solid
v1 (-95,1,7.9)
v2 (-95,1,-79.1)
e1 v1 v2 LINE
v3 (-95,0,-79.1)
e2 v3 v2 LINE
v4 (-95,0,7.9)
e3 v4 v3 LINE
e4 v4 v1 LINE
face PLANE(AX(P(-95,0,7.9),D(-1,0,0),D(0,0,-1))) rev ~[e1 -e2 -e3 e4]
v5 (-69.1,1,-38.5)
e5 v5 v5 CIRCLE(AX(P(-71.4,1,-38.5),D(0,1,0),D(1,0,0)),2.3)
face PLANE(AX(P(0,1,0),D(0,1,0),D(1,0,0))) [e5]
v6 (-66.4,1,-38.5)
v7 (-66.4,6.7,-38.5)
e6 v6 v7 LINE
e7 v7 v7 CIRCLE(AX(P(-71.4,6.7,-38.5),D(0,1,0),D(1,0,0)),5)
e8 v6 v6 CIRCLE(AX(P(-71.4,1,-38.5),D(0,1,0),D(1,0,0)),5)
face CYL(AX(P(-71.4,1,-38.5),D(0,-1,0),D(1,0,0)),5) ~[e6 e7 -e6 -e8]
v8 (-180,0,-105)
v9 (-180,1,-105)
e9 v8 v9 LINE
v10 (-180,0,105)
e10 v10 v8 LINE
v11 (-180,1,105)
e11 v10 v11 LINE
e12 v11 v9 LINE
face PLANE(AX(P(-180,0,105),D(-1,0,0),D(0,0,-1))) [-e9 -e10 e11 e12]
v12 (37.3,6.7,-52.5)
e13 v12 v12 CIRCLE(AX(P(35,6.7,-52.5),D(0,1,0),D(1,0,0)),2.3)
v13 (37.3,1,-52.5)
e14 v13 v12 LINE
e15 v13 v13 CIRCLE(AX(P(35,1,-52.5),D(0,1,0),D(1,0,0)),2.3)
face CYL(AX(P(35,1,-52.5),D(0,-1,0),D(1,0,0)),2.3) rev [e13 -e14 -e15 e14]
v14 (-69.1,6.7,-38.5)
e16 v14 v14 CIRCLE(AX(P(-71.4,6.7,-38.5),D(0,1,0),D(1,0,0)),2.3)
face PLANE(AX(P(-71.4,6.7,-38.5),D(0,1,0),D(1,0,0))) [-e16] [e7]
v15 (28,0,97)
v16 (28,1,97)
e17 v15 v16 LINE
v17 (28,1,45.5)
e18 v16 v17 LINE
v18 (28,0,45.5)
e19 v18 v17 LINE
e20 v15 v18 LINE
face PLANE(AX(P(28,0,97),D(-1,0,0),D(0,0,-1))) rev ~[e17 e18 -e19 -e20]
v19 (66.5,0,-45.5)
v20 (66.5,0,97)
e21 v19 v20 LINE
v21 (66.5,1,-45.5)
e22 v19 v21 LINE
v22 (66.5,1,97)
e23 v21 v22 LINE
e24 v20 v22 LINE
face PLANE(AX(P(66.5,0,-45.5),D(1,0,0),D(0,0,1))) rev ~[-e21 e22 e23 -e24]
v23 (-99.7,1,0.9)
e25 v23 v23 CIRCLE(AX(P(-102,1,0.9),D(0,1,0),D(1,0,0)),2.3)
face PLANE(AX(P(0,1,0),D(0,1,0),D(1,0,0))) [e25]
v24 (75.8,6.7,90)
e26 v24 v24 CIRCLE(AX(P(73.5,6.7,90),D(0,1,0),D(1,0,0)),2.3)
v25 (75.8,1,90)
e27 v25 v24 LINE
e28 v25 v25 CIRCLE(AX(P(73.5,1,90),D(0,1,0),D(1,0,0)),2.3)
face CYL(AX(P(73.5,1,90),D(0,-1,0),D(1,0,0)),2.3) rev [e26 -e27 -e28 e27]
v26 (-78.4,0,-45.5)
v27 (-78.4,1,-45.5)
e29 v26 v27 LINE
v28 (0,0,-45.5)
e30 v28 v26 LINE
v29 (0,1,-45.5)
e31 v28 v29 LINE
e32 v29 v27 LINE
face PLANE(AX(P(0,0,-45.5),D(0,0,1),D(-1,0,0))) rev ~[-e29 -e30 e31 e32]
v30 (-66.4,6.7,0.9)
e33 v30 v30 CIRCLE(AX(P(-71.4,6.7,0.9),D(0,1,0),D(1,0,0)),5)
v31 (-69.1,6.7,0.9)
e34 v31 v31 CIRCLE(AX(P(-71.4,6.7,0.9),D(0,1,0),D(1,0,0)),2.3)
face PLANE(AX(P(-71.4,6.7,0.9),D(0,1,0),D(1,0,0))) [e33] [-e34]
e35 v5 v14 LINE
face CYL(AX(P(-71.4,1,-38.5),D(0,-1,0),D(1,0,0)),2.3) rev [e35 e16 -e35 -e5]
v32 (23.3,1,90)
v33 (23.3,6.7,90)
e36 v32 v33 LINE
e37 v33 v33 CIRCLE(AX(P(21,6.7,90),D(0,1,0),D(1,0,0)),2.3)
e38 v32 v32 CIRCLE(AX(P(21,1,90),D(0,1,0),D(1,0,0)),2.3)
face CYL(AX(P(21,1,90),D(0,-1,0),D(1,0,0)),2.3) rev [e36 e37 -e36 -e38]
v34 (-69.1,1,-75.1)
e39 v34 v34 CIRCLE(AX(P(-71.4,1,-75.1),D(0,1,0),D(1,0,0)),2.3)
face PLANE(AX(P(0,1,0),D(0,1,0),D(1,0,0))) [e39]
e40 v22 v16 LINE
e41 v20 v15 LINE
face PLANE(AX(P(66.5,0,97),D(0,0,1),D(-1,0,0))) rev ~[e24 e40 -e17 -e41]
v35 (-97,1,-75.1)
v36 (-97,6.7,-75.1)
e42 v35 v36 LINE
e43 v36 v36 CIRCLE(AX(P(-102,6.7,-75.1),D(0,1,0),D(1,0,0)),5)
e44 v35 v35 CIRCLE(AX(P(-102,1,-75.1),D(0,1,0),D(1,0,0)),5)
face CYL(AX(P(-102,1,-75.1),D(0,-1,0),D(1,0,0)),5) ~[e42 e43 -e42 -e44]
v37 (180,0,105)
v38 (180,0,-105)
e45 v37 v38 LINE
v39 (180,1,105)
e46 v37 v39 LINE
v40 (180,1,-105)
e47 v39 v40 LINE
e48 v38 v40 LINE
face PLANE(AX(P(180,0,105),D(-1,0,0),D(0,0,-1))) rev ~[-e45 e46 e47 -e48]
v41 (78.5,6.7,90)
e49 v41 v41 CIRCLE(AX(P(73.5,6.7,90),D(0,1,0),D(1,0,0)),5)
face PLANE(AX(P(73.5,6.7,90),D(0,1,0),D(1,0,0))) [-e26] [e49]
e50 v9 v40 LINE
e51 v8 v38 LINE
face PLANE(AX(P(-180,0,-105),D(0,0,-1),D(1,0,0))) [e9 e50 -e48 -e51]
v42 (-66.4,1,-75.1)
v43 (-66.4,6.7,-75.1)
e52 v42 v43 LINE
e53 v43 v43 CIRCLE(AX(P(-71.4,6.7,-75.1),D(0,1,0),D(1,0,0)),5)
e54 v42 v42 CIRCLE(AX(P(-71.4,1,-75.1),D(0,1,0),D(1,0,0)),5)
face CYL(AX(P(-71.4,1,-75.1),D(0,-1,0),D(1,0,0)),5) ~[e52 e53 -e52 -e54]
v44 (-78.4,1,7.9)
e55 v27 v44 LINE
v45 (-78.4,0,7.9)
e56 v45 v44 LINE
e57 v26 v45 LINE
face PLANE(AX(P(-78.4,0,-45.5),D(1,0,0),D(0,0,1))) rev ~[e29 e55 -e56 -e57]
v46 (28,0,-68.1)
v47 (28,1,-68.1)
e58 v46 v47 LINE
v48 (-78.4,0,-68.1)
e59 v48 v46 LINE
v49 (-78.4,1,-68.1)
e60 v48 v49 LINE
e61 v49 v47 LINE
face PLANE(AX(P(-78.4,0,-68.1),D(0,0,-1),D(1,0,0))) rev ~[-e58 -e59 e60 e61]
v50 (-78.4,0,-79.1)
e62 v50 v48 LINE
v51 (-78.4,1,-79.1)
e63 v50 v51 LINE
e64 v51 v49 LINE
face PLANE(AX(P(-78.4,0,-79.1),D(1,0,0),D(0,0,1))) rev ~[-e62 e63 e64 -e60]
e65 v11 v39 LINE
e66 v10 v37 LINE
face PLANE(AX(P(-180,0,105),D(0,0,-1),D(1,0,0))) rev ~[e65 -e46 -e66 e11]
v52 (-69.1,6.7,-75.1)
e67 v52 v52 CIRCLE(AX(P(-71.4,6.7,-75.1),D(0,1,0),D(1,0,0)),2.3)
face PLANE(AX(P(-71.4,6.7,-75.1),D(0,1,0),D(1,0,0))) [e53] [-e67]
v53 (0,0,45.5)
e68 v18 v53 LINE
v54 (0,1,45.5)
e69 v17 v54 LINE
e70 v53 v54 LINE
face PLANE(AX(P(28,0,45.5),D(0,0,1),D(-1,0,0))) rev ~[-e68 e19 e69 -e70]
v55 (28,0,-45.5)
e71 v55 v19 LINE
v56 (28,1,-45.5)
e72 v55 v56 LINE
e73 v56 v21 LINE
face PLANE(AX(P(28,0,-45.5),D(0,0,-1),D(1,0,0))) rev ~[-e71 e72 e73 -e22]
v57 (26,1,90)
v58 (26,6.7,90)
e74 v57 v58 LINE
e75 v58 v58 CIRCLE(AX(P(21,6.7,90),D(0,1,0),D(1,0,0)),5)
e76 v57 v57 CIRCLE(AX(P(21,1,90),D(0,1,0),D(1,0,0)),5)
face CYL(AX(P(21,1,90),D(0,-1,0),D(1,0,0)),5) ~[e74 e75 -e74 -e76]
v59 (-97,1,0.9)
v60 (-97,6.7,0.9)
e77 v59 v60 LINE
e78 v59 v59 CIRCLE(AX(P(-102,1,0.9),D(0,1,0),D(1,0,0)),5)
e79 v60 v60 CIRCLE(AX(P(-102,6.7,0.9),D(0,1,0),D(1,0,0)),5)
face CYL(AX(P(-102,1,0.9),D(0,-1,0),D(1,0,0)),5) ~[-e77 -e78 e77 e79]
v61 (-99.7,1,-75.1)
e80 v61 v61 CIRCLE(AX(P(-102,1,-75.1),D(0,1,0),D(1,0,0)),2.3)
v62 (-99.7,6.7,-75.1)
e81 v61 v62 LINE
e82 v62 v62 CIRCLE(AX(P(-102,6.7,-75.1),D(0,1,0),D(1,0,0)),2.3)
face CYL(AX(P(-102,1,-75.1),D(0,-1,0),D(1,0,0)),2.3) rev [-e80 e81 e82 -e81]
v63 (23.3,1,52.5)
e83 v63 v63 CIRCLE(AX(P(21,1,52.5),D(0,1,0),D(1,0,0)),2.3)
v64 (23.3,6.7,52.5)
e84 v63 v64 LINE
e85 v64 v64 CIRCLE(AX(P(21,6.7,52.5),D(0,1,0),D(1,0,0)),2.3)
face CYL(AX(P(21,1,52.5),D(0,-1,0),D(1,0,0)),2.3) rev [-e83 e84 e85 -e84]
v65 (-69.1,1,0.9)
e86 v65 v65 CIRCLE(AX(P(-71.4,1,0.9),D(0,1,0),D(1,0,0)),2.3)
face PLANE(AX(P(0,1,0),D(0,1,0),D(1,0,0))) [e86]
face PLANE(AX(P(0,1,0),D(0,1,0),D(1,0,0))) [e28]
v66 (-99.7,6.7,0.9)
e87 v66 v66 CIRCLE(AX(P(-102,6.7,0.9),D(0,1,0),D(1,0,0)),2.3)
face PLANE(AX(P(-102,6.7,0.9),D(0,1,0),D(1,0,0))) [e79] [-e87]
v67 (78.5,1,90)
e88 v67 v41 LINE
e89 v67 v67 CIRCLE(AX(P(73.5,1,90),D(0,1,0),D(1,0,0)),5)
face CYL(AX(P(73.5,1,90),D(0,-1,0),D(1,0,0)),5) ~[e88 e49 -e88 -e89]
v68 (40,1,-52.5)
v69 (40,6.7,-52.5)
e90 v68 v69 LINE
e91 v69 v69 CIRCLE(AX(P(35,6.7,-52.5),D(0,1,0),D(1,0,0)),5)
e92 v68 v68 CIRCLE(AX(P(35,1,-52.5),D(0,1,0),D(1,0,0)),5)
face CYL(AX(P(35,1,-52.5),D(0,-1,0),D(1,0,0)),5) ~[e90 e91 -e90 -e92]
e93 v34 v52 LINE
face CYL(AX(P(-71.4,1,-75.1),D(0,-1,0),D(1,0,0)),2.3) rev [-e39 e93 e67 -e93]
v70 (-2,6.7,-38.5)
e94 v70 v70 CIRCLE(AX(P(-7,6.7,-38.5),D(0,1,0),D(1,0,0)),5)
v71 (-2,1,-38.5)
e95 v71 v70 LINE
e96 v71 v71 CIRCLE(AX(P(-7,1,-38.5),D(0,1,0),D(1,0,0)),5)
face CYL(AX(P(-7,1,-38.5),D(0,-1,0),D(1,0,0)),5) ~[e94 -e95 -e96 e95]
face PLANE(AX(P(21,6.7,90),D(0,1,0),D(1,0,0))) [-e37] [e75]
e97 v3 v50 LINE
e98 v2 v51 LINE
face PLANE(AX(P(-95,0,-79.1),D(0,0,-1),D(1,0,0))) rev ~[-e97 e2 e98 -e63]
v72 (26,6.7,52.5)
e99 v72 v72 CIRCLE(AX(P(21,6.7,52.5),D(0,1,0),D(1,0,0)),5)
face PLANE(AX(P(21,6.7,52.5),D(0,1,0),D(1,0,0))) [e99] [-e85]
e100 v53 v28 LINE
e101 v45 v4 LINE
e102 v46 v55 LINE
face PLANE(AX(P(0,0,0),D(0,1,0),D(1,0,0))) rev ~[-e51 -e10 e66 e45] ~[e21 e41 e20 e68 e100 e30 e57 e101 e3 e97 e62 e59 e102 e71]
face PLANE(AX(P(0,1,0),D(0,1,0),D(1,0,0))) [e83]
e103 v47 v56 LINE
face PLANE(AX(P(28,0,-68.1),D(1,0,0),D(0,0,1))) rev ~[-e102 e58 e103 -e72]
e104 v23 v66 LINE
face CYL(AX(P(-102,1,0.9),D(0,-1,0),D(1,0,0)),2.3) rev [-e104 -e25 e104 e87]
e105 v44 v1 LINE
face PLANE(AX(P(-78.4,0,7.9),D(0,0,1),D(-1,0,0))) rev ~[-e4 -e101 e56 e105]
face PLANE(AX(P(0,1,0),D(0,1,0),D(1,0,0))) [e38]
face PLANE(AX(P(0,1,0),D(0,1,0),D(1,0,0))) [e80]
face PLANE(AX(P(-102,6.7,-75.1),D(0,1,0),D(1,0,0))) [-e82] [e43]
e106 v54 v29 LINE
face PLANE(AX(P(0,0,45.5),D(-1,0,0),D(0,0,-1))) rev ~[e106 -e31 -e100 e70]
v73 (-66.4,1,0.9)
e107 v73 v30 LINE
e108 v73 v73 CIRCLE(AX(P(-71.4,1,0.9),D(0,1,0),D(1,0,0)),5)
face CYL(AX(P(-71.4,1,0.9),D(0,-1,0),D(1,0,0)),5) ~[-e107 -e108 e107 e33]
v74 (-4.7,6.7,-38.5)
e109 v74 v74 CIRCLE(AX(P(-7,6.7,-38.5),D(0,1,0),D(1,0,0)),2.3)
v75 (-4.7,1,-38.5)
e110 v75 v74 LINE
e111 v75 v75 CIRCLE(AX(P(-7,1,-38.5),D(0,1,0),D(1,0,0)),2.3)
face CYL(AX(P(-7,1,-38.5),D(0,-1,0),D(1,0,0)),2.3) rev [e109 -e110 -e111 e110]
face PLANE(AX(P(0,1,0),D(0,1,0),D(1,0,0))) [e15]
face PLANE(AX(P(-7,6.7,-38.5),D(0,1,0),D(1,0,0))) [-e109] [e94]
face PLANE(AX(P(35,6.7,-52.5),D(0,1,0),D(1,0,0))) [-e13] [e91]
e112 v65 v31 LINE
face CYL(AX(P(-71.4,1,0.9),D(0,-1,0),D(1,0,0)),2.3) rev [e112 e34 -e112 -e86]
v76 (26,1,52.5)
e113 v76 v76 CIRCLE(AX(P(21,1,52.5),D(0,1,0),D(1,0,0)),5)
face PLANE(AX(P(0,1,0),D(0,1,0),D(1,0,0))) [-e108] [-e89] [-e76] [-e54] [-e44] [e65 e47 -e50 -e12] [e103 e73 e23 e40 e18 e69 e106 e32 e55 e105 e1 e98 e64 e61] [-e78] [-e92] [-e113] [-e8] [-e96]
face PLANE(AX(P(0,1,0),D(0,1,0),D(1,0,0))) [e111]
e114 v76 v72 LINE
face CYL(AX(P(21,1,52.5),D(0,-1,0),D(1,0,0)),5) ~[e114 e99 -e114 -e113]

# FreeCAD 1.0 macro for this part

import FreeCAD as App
import Part
import Sketcher
from FreeCAD import Vector
Q = App.Units.Quantity

doc = App.newDocument("Part")
body = doc.addObject("PartDesign::Body", "Body")

sketch1 = body.newObject("Sketcher::SketchObject", "Sketch")
sketch1.AttachmentSupport = (doc.getObject("XZ_Plane"), [""])
sketch1.MapMode = "FlatFace"
sketch1.addGeometry([
    Part.LineSegment(Vector(-180, -105, 0), Vector(-180, 105, 0)),
    Part.LineSegment(Vector(-180, 105, 0), Vector(180, 105, 0)),
    Part.LineSegment(Vector(180, 105, 0), Vector(180, -105, 0)),
    Part.LineSegment(Vector(180, -105, 0), Vector(-180, -105, 0)),
    Part.LineSegment(Vector(28, 97, 0), Vector(28, 46, 0)),
    Part.LineSegment(Vector(28, 46, 0), Vector(0, 46, 0)),
    Part.LineSegment(Vector(0, 46, 0), Vector(0, -46, 0)),
    Part.LineSegment(Vector(0, -46, 0), Vector(-78, -46, 0)),
    Part.LineSegment(Vector(-78, -46, 0), Vector(-78, 8, 0)),
    Part.LineSegment(Vector(-78, 8, 0), Vector(-95, 8, 0)),
    Part.LineSegment(Vector(-95, 8, 0), Vector(-95, -79, 0)),
    Part.LineSegment(Vector(-95, -79, 0), Vector(-78, -79, 0)),
    Part.LineSegment(Vector(-78, -79, 0), Vector(-78, -68, 0)),
    Part.LineSegment(Vector(-78, -68, 0), Vector(28, -68, 0)),
    Part.LineSegment(Vector(28, -68, 0), Vector(28, -46, 0)),
    Part.LineSegment(Vector(28, -46, 0), Vector(66, -46, 0)),
    Part.LineSegment(Vector(66, -46, 0), Vector(66, 97, 0)),
    Part.LineSegment(Vector(66, 97, 0), Vector(28, 97, 0)),
], False)
sketch1.addConstraint([
    Sketcher.Constraint("Coincident", 0, 2, 1, 1),
    Sketcher.Constraint("Coincident", 1, 2, 2, 1),
    Sketcher.Constraint("Coincident", 2, 2, 3, 1),
    Sketcher.Constraint("Coincident", 3, 2, 0, 1),
    Sketcher.Constraint("Coincident", 4, 2, 5, 1),
    Sketcher.Constraint("Coincident", 5, 2, 6, 1),
    Sketcher.Constraint("Coincident", 6, 2, 7, 1),
    Sketcher.Constraint("Coincident", 7, 2, 8, 1),
    Sketcher.Constraint("Coincident", 8, 2, 9, 1),
    Sketcher.Constraint("Coincident", 9, 2, 10, 1),
    Sketcher.Constraint("Coincident", 10, 2, 11, 1),
    Sketcher.Constraint("Coincident", 11, 2, 12, 1),
    Sketcher.Constraint("Coincident", 12, 2, 13, 1),
    Sketcher.Constraint("Coincident", 13, 2, 14, 1),
    Sketcher.Constraint("Coincident", 14, 2, 15, 1),
    Sketcher.Constraint("Coincident", 15, 2, 16, 1),
    Sketcher.Constraint("Coincident", 16, 2, 17, 1),
    Sketcher.Constraint("Coincident", 17, 2, 4, 1),
    Sketcher.Constraint("Vertical", 0),
    Sketcher.Constraint("Horizontal", 1),
    Sketcher.Constraint("Vertical", 2),
    Sketcher.Constraint("Horizontal", 3),
    Sketcher.Constraint("Vertical", 4),
    Sketcher.Constraint("Horizontal", 5),
    Sketcher.Constraint("Vertical", 6),
    Sketcher.Constraint("Horizontal", 7),
    Sketcher.Constraint("Vertical", 8),
    Sketcher.Constraint("Horizontal", 9),
    Sketcher.Constraint("Vertical", 10),
    Sketcher.Constraint("Horizontal", 11),
    Sketcher.Constraint("Vertical", 12),
    Sketcher.Constraint("Horizontal", 13),
    Sketcher.Constraint("Vertical", 14),
    Sketcher.Constraint("Horizontal", 15),
    Sketcher.Constraint("Vertical", 16),
    Sketcher.Constraint("Horizontal", 17),
    Sketcher.Constraint("Symmetric", 0, 2, 2, 2, -1, 1),
    Sketcher.Constraint("Symmetric", 5, 2, 6, 2, -1, 1),
    Sketcher.Constraint("Symmetric", 4, 2, 14, 2, -1),
    Sketcher.Constraint("Vertical", 8, 2, 11, 2),
    Sketcher.Constraint("DistanceX", 1, 1, 1, 2, Q("360 mm")),
    Sketcher.Constraint("DistanceX", 5, 2, 5, 1, Q("28 mm")),
    Sketcher.Constraint("DistanceY", 0, 1, 0, 2, Q("210 mm")),
    Sketcher.Constraint("DistanceY", 6, 2, 6, 1, Q("91 mm")),
    Sketcher.Constraint("DistanceY", 10, 2, 10, 1, Q("87 mm")),
    Sketcher.Constraint("DistanceY", 12, 1, 12, 2, Q("11 mm")),
    Sketcher.Constraint("DistanceX", 7, 2, 7, 1, Q("78.4 mm")),
    Sketcher.Constraint("DistanceX", 9, 2, 9, 1, Q("16.6 mm")),
    Sketcher.Constraint("DistanceX", 15, 1, 15, 2, Q("38.5 mm")),
    Sketcher.Constraint("DistanceY", 4, 2, 4, 1, Q("51.5 mm")),
    Sketcher.Constraint("DistanceY", 8, 1, 8, 2, Q("53.4 mm")),
])
pad1 = body.newObject("PartDesign::Pad", "Pad")
pad1.Profile = sketch1
pad1.Length = 1
pad1.Reversed = True

sketch2 = body.newObject("Sketcher::SketchObject", "Sketch001")
sketch2.AttachmentSupport = (doc.getObject("XZ_Plane"), [""])
sketch2.MapMode = "FlatFace"
sketch2.AttachmentOffset = App.Placement(Vector(0, 0, -1), App.Rotation())
sketch2.addGeometry([
    Part.Circle(Vector(-71.4, -75.1, 0), Vector(0, 0, 1), 5),
    Part.Circle(Vector(-71.4, -75.1, 0), Vector(0, 0, 1), 2.3),
    Part.Circle(Vector(-71.4, -38.5, 0), Vector(0, 0, 1), 5),
    Part.Circle(Vector(-71.4, -38.5, 0), Vector(0, 0, 1), 2.3),
    Part.Circle(Vector(-102, -75.1, 0), Vector(0, 0, 1), 5),
    Part.Circle(Vector(-102, -75.1, 0), Vector(0, 0, 1), 2.3),
    Part.Circle(Vector(-7, -38.5, 0), Vector(0, 0, 1), 5),
    Part.Circle(Vector(-7, -38.5, 0), Vector(0, 0, 1), 2.3),
    Part.Circle(Vector(35, -52.5, 0), Vector(0, 0, 1), 5),
    Part.Circle(Vector(35, -52.5, 0), Vector(0, 0, 1), 2.3),
    Part.Circle(Vector(21, 52.5, 0), Vector(0, 0, 1), 5),
    Part.Circle(Vector(21, 52.5, 0), Vector(0, 0, 1), 2.3),
    Part.Circle(Vector(-71.4, 0.9, 0), Vector(0, 0, 1), 5),
    Part.Circle(Vector(-71.4, 0.9, 0), Vector(0, 0, 1), 2.3),
    Part.Circle(Vector(-102, 0.9, 0), Vector(0, 0, 1), 5),
    Part.Circle(Vector(-102, 0.9, 0), Vector(0, 0, 1), 2.3),
    Part.Circle(Vector(73.5, 90, 0), Vector(0, 0, 1), 5),
    Part.Circle(Vector(73.5, 90, 0), Vector(0, 0, 1), 2.3),
    Part.Circle(Vector(21, 90, 0), Vector(0, 0, 1), 5),
    Part.Circle(Vector(21, 90, 0), Vector(0, 0, 1), 2.3),
], False)
sketch2.addConstraint([
    Sketcher.Constraint("Coincident", 1, 3, 0, 3),
    Sketcher.Constraint("Coincident", 3, 3, 2, 3),
    Sketcher.Constraint("Coincident", 5, 3, 4, 3),
    Sketcher.Constraint("Coincident", 7, 3, 6, 3),
    Sketcher.Constraint("Coincident", 9, 3, 8, 3),
    Sketcher.Constraint("Coincident", 11, 3, 10, 3),
    Sketcher.Constraint("Coincident", 13, 3, 12, 3),
    Sketcher.Constraint("Coincident", 15, 3, 14, 3),
    Sketcher.Constraint("Coincident", 17, 3, 16, 3),
    Sketcher.Constraint("Coincident", 19, 3, 18, 3),
    Sketcher.Constraint("Equal", 0, 2),
    Sketcher.Constraint("Equal", 1, 3),
    Sketcher.Constraint("Equal", 2, 4),
    Sketcher.Constraint("Equal", 3, 5),
    Sketcher.Constraint("Equal", 4, 6),
    Sketcher.Constraint("Equal", 5, 7),
    Sketcher.Constraint("Equal", 6, 8),
    Sketcher.Constraint("Equal", 7, 9),
    Sketcher.Constraint("Equal", 8, 10),
    Sketcher.Constraint("Equal", 9, 11),
    Sketcher.Constraint("Equal", 10, 12),
    Sketcher.Constraint("Equal", 11, 13),
    Sketcher.Constraint("Equal", 12, 14),
    Sketcher.Constraint("Equal", 13, 15),
    Sketcher.Constraint("Equal", 14, 16),
    Sketcher.Constraint("Equal", 15, 17),
    Sketcher.Constraint("Equal", 16, 18),
    Sketcher.Constraint("Equal", 17, 19),
    Sketcher.Constraint("Horizontal", 1, 3, 4, 3),
    Sketcher.Constraint("Horizontal", 3, 3, 6, 3),
    Sketcher.Constraint("Horizontal", 13, 3, 14, 3),
    Sketcher.Constraint("Horizontal", 17, 3, 18, 3),
    Sketcher.Constraint("Vertical", 1, 3, 2, 3),
    Sketcher.Constraint("Vertical", 3, 3, 12, 3),
    Sketcher.Constraint("Vertical", 5, 3, 14, 3),
    Sketcher.Constraint("Vertical", 11, 3, 18, 3),
    Sketcher.Constraint("Diameter", 0, Q("10 mm")),
    Sketcher.Constraint("Diameter", 1, Q("4.6 mm")),
    Sketcher.Constraint("DistanceX", 4, 3, -1, 1, Q("102 mm")),
    Sketcher.Constraint("DistanceX", 6, 3, -1, 1, Q("7 mm")),
    Sketcher.Constraint("DistanceX", -1, 1, 8, 3, Q("35 mm")),
    Sketcher.Constraint("DistanceX", -1, 1, 10, 3, Q("21 mm")),
    Sketcher.Constraint("DistanceY", -1, 1, 16, 3, Q("90 mm")),
    Sketcher.Constraint("DistanceY", 8, 3, 6, 3, Q("14 mm")),
    Sketcher.Constraint("DistanceY", 6, 3, 10, 3, Q("91 mm")),
    Sketcher.Constraint("DistanceY", 0, 3, 12, 3, Q("76 mm")),
    Sketcher.Constraint("DistanceX", 0, 3, -1, 1, Q("71.4 mm")),
    Sketcher.Constraint("DistanceY", 0, 3, -1, 1, Q("75.1 mm")),
    Sketcher.Constraint("DistanceY", 2, 3, -1, 1, Q("38.5 mm")),
    Sketcher.Constraint("DistanceX", -1, 1, 16, 3, Q("73.5 mm")),
])
pad2 = body.newObject("PartDesign::Pad", "Pad001")
pad2.Profile = sketch2
pad2.Length = 5.7
pad2.Reversed = True

doc.recompute()
